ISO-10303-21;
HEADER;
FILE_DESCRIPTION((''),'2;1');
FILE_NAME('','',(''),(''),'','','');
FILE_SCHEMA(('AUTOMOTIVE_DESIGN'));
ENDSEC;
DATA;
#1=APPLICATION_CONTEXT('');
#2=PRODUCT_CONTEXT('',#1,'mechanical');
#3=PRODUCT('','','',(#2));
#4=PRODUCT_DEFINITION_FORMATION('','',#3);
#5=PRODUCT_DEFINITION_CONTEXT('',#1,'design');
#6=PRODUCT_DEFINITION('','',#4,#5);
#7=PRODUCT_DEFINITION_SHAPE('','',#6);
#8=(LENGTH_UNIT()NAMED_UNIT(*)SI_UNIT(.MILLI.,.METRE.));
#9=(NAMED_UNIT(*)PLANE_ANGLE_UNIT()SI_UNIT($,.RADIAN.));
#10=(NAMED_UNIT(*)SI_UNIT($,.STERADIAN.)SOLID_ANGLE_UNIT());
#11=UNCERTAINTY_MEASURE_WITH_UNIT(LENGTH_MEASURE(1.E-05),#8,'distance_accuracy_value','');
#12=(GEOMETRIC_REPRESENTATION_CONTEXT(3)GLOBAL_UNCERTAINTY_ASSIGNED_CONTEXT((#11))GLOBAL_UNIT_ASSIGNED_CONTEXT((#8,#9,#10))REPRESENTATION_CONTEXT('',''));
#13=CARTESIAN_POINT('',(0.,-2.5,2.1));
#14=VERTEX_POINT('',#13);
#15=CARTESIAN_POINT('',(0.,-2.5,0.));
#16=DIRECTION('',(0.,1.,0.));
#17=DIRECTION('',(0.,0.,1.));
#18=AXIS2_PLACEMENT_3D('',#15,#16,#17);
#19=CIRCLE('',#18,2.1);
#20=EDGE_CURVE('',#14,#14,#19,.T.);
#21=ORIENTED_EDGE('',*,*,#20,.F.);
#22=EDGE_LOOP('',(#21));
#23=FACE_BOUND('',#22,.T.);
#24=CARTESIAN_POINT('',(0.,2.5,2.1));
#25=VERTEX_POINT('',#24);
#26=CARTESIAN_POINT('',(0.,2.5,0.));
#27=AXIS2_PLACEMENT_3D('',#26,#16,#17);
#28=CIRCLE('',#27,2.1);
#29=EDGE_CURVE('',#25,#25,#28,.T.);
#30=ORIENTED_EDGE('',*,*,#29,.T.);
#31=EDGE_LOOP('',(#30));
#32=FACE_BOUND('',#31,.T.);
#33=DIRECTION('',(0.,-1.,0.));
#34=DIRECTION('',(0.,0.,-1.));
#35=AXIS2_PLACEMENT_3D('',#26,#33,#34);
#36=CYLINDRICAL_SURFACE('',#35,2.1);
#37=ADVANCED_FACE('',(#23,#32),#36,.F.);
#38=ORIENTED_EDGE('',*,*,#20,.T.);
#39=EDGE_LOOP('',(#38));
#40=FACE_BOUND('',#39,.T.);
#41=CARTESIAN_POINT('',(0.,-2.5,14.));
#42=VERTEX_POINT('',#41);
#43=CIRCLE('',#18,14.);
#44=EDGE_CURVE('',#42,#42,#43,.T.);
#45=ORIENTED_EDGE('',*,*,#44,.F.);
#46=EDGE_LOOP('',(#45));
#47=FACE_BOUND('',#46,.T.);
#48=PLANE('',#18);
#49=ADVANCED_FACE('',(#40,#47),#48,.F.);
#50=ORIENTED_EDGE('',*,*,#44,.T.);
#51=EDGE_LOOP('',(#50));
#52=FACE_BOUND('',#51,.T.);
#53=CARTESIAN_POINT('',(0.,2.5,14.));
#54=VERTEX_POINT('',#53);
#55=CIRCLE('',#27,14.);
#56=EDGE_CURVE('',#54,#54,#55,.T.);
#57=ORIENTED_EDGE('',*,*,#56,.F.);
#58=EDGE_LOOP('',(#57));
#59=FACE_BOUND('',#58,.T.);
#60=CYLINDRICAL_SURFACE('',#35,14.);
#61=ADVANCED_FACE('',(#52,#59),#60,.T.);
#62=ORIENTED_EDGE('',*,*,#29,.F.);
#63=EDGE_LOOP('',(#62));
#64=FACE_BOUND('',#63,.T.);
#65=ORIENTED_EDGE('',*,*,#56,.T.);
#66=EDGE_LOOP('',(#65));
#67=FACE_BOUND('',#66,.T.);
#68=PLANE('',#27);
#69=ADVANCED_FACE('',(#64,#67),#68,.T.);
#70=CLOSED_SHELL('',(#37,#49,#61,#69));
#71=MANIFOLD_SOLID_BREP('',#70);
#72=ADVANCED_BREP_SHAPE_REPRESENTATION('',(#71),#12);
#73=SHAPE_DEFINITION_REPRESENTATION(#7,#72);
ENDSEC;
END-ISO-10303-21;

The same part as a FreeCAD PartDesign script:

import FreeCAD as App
import Part
import Sketcher
from FreeCAD import Vector
Q = App.Units.Quantity

doc = App.newDocument("Part")
body = doc.addObject("PartDesign::Body", "Body")

sketch1 = body.newObject("Sketcher::SketchObject", "Sketch")
sketch1.AttachmentSupport = (doc.getObject("XZ_Plane"), [""])
sketch1.MapMode = "FlatFace"
sketch1.addGeometry(Part.Circle(Vector(0, 0, 0), Vector(0, 0, 1), 14), False)
sketch1.addGeometry(Part.Circle(Vector(0, 0, 0), Vector(0, 0, 1), 2.1), False)
sketch1.addConstraint(Sketcher.Constraint("Coincident", 0, 3, -1, 1))
sketch1.addConstraint(Sketcher.Constraint("Coincident", 1, 3, -1, 1))
sketch1.addConstraint(Sketcher.Constraint("Diameter", 0, Q("28 mm")))
sketch1.addConstraint(Sketcher.Constraint("Diameter", 1, Q("4.2 mm")))
pad1 = body.newObject("PartDesign::Pad", "Pad")
pad1.Profile = sketch1
pad1.Length = 5
pad1.Midplane = True

doc.recompute()
